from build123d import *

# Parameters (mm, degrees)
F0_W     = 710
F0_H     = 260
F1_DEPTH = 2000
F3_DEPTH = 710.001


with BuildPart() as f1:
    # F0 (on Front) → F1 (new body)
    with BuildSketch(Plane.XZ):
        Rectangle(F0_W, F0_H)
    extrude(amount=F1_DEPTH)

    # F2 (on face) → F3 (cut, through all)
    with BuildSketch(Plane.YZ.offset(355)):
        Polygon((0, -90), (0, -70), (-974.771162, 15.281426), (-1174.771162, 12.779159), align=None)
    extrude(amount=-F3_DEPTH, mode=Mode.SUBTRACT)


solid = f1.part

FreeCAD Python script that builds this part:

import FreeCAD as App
import Part
import Sketcher
from FreeCAD import Vector
Q = App.Units.Quantity


def add_polygon(sketch, points):
    """Adds a closed chain of lines whose ends are joined by coincident constraints."""
    first, n = sketch.GeometryCount, len(points)
    for a, b in zip(points, points[1:] + points[:1]):
        sketch.addGeometry(Part.LineSegment(App.Vector(*a, 0), App.Vector(*b, 0)), False)
    for i in range(n):
        sketch.addConstraint(Sketcher.Constraint("Coincident", first + i, 2, first + (i + 1) % n, 1))

doc = App.newDocument("Part")
body = doc.addObject("PartDesign::Body", "Body")

sketch1 = body.newObject("Sketcher::SketchObject", "Sketch")
sketch1.AttachmentSupport = (doc.getObject("XZ_Plane"), [""])
sketch1.MapMode = "FlatFace"
add_polygon(sketch1, [(-355, 130), (-355, -130), (355, -130), (355, 130)])
sketch1.addConstraint([
    Sketcher.Constraint("Vertical", 0),
    Sketcher.Constraint("Horizontal", 1),
    Sketcher.Constraint("Vertical", 2),
    Sketcher.Constraint("Horizontal", 3),
    Sketcher.Constraint("Symmetric", 0, 2, 2, 2, -1, 1),
    Sketcher.Constraint("DistanceX", 1, 1, 1, 2, Q("710 mm")),
    Sketcher.Constraint("DistanceY", 0, 2, 0, 1, Q("260 mm")),
])
pad1 = body.newObject("PartDesign::Pad", "Pad")
pad1.Profile = sketch1
pad1.Length = 2000

sketch2 = body.newObject("Sketcher::SketchObject", "Sketch001")
sketch2.AttachmentSupport = (doc.getObject("YZ_Plane"), [""])
sketch2.MapMode = "FlatFace"
sketch2.AttachmentOffset = App.Placement(Vector(0, 0, 355), App.Rotation())
add_polygon(sketch2, [(0, -90), (0, -70), (-974.771162, 15.281426), (-1174.771162, 12.779159)])
sketch2.addConstraint([
    Sketcher.Constraint("Vertical", 0),
    Sketcher.Constraint("PointOnObject", 0, 2, -2),
    Sketcher.Constraint("Parallel", 1, 3),
    Sketcher.Constraint("DistanceY", 0, 1, 0, 2, Q("20 mm")),
    Sketcher.Constraint("Angle", 1, Q("175 deg")),
    Sketcher.Constraint("DistanceY", 0, 2, -1, 1, Q("70 mm")),
    Sketcher.Constraint("DistanceX", 2, 2, 1, 2, Q("200 mm")),
    Sketcher.Constraint("Distance", 1, Q("978.494629 mm")),
])
pocket1 = body.newObject("PartDesign::Pocket", "Pocket")
pocket1.Profile = sketch2
pocket1.Type = "ThroughAll"

doc.recompute()
